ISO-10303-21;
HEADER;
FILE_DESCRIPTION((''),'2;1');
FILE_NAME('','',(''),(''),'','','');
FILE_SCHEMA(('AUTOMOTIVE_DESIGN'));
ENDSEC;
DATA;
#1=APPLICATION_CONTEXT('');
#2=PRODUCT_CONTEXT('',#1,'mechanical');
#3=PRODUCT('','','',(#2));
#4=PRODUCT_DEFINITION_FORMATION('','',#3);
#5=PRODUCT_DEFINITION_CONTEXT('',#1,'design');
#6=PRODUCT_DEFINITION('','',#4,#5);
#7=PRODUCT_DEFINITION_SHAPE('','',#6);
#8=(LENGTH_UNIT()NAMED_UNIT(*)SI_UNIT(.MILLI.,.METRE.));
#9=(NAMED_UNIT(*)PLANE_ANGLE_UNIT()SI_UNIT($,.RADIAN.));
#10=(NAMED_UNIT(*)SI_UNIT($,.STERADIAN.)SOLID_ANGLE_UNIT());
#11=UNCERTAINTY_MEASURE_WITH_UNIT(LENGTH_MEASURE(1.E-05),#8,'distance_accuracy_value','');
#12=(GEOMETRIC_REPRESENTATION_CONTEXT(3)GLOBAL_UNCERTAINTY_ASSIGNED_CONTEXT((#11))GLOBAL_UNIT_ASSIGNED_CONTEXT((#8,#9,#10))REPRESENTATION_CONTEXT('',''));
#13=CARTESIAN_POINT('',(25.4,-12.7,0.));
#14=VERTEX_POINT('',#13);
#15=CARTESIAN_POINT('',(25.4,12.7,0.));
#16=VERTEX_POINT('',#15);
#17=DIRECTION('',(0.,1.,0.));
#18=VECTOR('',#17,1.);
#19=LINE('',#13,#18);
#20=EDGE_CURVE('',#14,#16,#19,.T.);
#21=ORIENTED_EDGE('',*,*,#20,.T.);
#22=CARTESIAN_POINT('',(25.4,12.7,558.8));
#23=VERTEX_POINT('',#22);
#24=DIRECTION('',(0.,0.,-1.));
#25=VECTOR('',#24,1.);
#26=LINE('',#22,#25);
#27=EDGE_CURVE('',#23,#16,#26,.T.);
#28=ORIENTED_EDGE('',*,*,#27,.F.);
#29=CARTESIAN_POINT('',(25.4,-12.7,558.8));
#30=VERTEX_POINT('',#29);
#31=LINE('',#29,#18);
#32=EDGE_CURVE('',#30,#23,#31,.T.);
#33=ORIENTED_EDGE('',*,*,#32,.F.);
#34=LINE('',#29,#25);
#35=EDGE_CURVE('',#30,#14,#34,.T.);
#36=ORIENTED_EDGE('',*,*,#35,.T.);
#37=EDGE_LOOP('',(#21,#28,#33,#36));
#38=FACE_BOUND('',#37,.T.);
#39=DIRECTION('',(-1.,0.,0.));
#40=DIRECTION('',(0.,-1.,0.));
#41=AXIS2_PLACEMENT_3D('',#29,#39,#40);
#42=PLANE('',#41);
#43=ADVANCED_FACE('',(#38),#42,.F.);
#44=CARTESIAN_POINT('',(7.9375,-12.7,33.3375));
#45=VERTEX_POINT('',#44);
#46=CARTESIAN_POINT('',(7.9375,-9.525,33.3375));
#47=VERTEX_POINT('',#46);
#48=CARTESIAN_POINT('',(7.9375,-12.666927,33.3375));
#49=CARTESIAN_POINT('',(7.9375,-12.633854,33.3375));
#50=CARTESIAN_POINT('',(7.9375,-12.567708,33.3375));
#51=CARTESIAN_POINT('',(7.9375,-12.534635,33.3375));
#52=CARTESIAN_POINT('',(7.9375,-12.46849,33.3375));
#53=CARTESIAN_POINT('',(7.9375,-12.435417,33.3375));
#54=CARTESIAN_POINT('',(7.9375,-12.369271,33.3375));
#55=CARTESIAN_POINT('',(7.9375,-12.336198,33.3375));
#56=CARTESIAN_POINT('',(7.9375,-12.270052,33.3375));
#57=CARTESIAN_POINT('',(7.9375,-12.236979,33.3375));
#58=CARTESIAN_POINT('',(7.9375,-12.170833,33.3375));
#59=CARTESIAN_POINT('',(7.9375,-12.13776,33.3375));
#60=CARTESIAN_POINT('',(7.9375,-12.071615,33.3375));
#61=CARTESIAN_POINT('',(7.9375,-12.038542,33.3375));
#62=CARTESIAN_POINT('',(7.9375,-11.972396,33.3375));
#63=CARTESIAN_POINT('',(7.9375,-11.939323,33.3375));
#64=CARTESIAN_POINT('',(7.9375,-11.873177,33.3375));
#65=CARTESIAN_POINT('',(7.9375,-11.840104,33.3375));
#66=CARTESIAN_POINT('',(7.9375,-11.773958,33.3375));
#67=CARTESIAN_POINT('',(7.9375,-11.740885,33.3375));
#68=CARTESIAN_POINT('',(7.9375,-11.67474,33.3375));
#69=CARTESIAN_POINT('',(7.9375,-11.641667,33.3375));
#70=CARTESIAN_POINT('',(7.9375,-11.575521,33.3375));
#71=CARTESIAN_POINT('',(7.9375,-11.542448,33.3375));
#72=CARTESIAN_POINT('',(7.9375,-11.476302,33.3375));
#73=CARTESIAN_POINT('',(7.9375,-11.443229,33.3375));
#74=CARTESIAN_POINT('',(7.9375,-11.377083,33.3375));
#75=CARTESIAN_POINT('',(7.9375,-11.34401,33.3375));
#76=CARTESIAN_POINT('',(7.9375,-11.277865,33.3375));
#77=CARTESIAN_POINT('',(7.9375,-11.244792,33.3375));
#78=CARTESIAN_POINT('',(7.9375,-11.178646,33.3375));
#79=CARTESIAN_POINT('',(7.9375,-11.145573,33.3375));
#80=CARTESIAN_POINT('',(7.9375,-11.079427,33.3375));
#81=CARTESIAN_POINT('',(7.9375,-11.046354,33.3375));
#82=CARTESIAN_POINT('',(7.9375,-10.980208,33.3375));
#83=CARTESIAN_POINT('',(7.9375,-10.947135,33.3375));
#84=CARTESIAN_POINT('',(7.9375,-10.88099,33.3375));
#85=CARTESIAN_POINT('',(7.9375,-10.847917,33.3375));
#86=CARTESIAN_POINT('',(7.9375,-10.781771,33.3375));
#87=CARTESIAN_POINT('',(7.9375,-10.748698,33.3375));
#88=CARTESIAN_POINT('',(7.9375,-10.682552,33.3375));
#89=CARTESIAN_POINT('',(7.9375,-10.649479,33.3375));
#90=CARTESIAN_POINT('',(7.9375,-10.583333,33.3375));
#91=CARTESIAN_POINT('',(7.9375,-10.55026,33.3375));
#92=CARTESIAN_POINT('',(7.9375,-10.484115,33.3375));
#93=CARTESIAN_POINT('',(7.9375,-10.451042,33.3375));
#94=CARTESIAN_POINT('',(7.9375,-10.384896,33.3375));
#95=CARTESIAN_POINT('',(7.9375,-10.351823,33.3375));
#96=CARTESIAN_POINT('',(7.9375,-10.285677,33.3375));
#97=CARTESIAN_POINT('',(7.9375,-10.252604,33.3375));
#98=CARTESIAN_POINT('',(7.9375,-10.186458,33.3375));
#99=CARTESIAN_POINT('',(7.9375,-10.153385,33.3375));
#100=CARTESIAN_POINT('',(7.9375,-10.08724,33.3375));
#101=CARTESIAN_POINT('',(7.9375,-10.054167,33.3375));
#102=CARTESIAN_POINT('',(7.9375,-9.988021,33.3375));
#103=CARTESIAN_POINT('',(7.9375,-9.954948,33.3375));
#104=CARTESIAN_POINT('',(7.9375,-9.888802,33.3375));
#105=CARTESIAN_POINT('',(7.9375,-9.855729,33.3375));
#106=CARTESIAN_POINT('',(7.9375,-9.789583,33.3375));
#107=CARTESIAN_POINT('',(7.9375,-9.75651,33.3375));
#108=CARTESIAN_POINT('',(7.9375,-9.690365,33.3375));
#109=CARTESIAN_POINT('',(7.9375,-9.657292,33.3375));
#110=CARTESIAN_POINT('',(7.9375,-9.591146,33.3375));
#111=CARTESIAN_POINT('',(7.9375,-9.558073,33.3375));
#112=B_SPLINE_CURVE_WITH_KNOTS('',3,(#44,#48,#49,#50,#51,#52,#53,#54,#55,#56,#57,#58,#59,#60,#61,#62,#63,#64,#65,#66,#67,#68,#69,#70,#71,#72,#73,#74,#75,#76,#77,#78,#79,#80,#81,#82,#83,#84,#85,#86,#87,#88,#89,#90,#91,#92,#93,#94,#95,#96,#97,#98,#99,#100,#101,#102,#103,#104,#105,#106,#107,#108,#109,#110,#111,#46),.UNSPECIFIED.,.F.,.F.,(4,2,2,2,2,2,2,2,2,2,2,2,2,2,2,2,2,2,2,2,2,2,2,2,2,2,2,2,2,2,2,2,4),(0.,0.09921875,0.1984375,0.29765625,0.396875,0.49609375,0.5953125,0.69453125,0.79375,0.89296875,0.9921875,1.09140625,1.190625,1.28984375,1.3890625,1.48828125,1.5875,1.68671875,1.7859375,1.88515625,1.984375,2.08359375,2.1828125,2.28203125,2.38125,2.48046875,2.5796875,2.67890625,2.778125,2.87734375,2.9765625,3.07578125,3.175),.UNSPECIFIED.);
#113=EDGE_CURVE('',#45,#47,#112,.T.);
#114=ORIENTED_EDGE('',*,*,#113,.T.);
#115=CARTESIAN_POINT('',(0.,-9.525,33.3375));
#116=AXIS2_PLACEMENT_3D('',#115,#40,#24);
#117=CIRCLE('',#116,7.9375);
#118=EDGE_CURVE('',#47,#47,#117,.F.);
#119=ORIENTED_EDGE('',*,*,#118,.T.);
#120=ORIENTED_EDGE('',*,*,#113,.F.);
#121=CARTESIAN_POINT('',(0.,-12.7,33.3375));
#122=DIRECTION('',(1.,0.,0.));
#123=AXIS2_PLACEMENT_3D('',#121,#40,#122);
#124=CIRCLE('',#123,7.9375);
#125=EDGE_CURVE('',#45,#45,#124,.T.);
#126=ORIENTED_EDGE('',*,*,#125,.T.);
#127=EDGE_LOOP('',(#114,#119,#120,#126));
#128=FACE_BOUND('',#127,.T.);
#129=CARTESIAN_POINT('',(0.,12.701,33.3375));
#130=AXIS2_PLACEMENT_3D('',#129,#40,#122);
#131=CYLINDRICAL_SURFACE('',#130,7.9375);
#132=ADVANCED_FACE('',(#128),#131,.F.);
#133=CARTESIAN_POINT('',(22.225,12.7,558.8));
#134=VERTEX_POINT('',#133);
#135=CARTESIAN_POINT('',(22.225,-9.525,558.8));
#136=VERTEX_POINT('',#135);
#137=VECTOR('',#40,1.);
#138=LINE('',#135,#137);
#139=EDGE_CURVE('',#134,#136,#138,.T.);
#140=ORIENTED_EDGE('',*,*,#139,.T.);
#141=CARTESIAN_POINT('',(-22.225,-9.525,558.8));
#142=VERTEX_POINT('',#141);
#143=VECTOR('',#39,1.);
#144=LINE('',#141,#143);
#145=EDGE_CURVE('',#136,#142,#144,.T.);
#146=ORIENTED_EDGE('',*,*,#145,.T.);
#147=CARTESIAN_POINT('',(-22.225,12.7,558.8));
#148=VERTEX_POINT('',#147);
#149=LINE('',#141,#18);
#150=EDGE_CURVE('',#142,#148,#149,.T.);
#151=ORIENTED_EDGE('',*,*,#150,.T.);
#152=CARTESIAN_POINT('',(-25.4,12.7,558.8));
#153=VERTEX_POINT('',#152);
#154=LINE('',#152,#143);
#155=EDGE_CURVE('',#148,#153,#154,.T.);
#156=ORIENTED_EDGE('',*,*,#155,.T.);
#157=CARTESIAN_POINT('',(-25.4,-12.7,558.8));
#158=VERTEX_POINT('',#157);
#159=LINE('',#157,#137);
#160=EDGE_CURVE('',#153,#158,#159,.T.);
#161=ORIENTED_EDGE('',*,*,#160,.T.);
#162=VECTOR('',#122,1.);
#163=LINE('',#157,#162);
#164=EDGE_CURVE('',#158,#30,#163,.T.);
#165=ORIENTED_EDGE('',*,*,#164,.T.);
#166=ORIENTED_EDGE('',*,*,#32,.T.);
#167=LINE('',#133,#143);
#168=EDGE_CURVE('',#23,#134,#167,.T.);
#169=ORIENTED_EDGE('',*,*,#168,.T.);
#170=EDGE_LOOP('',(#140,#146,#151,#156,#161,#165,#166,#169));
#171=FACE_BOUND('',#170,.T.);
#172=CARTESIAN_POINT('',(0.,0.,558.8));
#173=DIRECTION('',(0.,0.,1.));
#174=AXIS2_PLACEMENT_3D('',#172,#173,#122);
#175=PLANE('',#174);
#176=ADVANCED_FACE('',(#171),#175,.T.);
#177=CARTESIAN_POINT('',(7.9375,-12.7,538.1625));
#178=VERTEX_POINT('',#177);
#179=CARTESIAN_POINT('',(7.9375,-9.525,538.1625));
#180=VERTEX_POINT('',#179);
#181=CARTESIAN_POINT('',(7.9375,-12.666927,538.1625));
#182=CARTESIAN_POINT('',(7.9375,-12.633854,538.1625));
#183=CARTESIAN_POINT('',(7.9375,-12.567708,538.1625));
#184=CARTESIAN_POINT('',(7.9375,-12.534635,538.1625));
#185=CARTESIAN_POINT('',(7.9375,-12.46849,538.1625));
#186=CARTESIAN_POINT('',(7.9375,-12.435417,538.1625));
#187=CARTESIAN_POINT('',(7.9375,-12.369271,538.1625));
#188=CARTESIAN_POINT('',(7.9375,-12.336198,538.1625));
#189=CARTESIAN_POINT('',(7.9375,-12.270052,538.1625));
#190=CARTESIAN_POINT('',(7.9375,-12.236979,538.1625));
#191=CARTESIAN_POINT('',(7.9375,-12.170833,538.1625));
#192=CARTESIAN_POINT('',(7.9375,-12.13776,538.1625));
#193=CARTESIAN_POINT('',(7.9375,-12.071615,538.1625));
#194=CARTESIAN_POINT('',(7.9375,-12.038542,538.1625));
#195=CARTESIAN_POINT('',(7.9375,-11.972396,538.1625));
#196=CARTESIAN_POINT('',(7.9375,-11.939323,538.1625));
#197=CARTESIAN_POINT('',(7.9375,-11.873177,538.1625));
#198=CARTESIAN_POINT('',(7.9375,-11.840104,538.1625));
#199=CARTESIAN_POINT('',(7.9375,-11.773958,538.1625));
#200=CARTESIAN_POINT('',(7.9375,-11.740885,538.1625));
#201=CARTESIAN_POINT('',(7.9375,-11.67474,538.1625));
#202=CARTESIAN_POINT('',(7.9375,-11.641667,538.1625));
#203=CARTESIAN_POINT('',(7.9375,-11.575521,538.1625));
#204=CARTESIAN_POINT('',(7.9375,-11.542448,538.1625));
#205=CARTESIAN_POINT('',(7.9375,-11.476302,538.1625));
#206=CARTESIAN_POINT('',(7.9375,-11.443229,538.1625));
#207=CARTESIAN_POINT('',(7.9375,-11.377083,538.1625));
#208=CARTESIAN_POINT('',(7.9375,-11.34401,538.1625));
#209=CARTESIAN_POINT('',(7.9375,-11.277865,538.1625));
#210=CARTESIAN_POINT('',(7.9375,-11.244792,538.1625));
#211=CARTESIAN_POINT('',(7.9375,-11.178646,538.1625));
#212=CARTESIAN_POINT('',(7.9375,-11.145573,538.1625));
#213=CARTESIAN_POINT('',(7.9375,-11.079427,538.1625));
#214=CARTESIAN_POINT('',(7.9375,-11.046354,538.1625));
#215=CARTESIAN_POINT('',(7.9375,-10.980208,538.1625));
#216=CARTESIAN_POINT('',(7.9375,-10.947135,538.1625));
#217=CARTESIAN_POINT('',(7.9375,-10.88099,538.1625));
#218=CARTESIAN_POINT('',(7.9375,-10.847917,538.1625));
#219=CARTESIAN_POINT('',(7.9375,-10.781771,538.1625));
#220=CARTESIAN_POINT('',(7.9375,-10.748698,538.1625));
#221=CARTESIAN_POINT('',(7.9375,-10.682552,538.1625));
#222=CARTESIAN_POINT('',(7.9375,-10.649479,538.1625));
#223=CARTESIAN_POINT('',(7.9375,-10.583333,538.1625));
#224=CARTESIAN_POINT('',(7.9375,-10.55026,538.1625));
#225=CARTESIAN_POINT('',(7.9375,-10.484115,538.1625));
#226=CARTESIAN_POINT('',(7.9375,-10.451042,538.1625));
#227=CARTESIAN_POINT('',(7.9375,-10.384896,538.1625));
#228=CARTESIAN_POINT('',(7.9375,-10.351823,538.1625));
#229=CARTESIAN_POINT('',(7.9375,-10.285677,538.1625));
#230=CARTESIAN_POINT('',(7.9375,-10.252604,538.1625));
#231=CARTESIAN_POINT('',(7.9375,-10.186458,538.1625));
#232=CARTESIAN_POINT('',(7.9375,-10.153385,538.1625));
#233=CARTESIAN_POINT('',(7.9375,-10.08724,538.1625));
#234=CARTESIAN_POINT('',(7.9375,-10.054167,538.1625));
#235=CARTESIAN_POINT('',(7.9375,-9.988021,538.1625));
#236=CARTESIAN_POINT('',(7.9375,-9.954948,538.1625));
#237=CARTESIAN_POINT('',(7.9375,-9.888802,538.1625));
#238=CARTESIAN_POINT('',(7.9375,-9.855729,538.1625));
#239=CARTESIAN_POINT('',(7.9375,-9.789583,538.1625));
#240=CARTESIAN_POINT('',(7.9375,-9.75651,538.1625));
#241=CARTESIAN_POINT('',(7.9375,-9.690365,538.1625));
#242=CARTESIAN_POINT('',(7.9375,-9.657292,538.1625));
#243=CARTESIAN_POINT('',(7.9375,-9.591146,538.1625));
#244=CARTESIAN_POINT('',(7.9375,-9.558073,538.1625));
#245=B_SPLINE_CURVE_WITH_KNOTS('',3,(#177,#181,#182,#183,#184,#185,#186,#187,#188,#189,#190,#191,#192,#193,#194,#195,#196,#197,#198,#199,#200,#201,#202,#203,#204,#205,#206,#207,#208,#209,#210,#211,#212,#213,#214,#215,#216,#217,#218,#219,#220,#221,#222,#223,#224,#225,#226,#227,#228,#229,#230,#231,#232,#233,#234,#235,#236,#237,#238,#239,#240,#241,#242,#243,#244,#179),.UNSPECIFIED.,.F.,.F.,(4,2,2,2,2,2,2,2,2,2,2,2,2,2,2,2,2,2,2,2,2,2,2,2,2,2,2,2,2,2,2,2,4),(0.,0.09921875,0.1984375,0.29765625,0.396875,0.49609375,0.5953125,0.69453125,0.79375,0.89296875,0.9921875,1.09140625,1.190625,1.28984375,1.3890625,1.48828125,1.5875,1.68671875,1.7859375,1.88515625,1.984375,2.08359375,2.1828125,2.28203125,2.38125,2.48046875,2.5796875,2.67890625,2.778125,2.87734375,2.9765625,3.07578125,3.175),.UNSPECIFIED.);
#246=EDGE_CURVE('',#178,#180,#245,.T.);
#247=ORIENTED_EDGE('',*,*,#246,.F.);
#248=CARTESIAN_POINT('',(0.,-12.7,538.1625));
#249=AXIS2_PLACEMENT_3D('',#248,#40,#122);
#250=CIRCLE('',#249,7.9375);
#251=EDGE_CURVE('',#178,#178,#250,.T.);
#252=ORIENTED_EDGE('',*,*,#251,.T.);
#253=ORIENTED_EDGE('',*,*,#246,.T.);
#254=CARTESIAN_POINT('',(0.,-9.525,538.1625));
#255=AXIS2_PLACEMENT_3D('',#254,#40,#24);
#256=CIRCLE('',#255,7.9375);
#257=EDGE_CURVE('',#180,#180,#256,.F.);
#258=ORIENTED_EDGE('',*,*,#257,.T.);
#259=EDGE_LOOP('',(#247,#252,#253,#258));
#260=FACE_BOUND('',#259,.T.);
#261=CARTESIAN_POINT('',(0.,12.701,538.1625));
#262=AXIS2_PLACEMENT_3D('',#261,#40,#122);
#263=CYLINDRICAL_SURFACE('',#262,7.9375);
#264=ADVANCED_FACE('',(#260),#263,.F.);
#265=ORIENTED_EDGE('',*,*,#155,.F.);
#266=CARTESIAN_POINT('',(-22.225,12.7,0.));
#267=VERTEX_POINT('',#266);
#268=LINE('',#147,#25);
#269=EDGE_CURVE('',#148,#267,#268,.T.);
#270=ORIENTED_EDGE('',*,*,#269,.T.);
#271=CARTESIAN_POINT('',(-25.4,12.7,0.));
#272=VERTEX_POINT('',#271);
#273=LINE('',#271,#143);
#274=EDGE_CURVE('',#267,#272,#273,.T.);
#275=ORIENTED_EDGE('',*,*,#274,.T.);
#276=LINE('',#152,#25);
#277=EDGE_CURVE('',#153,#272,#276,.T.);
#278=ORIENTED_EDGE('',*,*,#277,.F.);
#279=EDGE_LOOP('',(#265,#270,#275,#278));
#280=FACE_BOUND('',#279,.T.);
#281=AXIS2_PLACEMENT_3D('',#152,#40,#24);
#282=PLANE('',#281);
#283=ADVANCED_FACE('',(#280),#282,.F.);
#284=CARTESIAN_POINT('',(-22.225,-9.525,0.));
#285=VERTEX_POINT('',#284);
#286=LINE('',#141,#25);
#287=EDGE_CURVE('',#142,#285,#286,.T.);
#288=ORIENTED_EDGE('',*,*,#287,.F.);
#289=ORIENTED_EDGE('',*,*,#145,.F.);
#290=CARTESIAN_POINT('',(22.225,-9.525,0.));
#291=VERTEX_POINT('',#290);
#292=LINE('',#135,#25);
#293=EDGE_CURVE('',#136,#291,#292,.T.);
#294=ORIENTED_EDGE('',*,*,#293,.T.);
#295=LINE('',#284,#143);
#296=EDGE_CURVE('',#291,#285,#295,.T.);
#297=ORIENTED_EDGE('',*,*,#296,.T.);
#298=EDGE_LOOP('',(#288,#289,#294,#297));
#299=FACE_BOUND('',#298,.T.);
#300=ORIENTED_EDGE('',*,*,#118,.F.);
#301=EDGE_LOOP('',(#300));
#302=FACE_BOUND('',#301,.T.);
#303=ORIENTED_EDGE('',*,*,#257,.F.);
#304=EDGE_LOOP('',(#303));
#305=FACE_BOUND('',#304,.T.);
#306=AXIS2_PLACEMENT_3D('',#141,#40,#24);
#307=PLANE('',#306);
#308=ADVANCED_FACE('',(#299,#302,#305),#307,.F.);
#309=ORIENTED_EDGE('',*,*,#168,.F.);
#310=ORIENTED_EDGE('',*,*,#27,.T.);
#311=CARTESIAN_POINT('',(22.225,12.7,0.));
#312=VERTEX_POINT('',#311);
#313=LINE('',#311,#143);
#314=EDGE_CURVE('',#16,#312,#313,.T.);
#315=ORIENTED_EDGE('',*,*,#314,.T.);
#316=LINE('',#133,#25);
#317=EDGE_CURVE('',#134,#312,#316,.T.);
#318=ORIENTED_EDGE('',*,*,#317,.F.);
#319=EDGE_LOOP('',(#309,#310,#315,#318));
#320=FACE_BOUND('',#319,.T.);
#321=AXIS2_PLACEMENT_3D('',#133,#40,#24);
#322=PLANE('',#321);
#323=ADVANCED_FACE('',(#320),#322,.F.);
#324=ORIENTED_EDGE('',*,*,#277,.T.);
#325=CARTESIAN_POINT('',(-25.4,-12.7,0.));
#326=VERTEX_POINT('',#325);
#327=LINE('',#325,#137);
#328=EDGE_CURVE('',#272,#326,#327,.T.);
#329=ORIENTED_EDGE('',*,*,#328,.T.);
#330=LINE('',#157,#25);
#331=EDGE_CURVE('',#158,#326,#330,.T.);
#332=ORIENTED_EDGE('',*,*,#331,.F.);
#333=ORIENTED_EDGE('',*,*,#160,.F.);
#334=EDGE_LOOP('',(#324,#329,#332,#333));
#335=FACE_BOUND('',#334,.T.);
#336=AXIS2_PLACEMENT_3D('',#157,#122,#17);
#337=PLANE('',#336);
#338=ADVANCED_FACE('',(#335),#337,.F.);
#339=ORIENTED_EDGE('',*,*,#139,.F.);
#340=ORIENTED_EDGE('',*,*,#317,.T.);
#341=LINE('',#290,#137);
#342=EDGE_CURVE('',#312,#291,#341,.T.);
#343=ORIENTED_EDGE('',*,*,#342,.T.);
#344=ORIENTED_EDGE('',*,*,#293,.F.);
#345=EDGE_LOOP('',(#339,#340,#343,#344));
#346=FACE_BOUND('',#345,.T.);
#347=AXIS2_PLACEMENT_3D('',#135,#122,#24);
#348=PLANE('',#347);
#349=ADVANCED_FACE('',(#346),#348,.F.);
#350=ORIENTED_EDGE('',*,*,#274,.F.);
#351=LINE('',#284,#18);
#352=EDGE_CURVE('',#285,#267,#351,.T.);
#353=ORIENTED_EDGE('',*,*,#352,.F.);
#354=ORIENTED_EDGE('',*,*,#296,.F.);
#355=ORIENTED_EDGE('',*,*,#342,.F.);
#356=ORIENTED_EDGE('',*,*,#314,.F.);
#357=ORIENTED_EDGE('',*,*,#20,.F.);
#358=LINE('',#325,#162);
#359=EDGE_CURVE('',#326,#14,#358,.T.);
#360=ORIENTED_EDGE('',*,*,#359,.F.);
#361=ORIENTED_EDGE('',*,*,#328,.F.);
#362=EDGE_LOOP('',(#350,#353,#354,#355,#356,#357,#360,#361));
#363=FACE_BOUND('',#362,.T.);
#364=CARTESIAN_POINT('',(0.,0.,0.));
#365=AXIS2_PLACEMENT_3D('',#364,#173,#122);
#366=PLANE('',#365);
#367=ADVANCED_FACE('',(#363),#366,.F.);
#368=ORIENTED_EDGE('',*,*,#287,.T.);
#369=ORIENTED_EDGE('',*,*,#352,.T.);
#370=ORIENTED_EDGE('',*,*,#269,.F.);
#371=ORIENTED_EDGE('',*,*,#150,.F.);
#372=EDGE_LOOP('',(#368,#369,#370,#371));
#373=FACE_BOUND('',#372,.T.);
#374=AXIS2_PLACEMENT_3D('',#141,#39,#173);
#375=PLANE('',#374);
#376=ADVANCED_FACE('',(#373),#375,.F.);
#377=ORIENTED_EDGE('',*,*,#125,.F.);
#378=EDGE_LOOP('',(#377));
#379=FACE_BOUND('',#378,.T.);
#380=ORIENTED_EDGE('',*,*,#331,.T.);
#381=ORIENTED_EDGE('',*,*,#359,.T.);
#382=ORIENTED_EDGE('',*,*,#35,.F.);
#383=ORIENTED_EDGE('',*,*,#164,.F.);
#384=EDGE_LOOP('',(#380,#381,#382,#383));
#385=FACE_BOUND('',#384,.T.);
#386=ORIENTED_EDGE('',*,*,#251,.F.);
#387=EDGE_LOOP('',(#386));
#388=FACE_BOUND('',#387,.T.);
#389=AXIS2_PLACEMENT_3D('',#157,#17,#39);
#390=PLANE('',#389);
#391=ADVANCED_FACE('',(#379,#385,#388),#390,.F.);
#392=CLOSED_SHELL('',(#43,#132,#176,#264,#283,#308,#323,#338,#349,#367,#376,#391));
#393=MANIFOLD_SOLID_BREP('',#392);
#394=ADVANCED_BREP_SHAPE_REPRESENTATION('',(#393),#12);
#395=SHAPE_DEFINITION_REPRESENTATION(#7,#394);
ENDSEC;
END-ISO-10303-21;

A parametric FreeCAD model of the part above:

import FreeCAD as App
import Part
import Sketcher
Q = App.Units.Quantity


def add_polygon(sketch, points):
    """Adds a closed chain of lines whose ends are joined by coincident constraints."""
    first, n = sketch.GeometryCount, len(points)
    for a, b in zip(points, points[1:] + points[:1]):
        sketch.addGeometry(Part.LineSegment(App.Vector(*a, 0), App.Vector(*b, 0)), False)
    for i in range(n):
        sketch.addConstraint(Sketcher.Constraint("Coincident", first + i, 2, first + (i + 1) % n, 1))

doc = App.newDocument("Part")
body = doc.addObject("PartDesign::Body", "Body")

sketch1 = doc.addObject("Sketcher::SketchObject", "Sketch")
body.addObject(sketch1)
sketch1.AttachmentSupport = (doc.XY_Plane, [""])
sketch1.MapMode = "FlatFace"
add_polygon(sketch1, [(-22.225, -9.525), (-22.225, 12.7), (-25.4, 12.7), (-25.4, -12.7), (25.4, -12.7), (25.4, 12.7), (22.225, 12.7), (22.225, -9.525)])
sketch1.addConstraint(Sketcher.Constraint("Vertical", 0))
sketch1.addConstraint(Sketcher.Constraint("Horizontal", 1))
sketch1.addConstraint(Sketcher.Constraint("Vertical", 2))
sketch1.addConstraint(Sketcher.Constraint("Horizontal", 3))
sketch1.addConstraint(Sketcher.Constraint("Vertical", 4))
sketch1.addConstraint(Sketcher.Constraint("Horizontal", 5))
sketch1.addConstraint(Sketcher.Constraint("Vertical", 6))
sketch1.addConstraint(Sketcher.Constraint("Horizontal", 7))
sketch1.addConstraint(Sketcher.Constraint("Symmetric", 1, 2, 3, 2, -1, 1))
sketch1.addConstraint(Sketcher.Constraint("Symmetric", 0, 2, 5, 2, -2))
sketch1.addConstraint(Sketcher.Constraint("DistanceX", 3, 1, 3, 2, Q("2 in")))
sketch1.addConstraint(Sketcher.Constraint("DistanceY", 2, 2, 2, 1, Q("1 in")))
sketch1.addConstraint(Sketcher.Constraint("DistanceX", 7, 2, 7, 1, Q("1.75 in")))
sketch1.addConstraint(Sketcher.Constraint("DistanceY", 0, 1, 0, 2, Q("0.875 in")))
pad1 = doc.addObject("PartDesign::Pad", "Pad")
body.addObject(pad1)
pad1.Profile = sketch1
pad1.Length = Q("22 in")

sketch2 = doc.addObject("Sketcher::SketchObject", "Sketch001")
body.addObject(sketch2)
sketch2.AttachmentSupport = (doc.XZ_Plane, [""])
sketch2.MapMode = "FlatFace"
sketch2.AttachmentOffset = App.Placement(App.Vector(0, 0, 0.5 * 25.4), App.Rotation())
sketch2.addGeometry(Part.Circle(App.Vector(0, 33.3375, 0), App.Vector(0, 0, 1), 7.9375), False)
sketch2.addConstraint(Sketcher.Constraint("PointOnObject", 0, 3, -2))
sketch2.addConstraint(Sketcher.Constraint("Diameter", 0, Q("0.625 in")))
sketch2.addConstraint(Sketcher.Constraint("DistanceY", -1, 1, 0, 3, Q("1.3125 in")))
pocket1 = doc.addObject("PartDesign::Pocket", "Pocket")
body.addObject(pocket1)
pocket1.Profile = sketch2
pocket1.Type = "UpToFirst"

sketch3 = doc.addObject("Sketcher::SketchObject", "Sketch002")
body.addObject(sketch3)
sketch3.AttachmentSupport = (doc.XZ_Plane, [""])
sketch3.MapMode = "FlatFace"
sketch3.AttachmentOffset = App.Placement(App.Vector(0, 0, 0.5 * 25.4), App.Rotation())
sketch3.addGeometry(Part.Circle(App.Vector(0, 538.1625, 0), App.Vector(0, 0, 1), 7.9375), False)
sketch3.addConstraint(Sketcher.Constraint("PointOnObject", 0, 3, -2))
sketch3.addConstraint(Sketcher.Constraint("Diameter", 0, Q("0.625 in")))
sketch3.addConstraint(Sketcher.Constraint("DistanceY", -1, 1, 0, 3, Q("21.1875 in")))
pocket2 = doc.addObject("PartDesign::Pocket", "Pocket001")
body.addObject(pocket2)
pocket2.Profile = sketch3
pocket2.Type = "UpToFirst"

doc.recompute()
